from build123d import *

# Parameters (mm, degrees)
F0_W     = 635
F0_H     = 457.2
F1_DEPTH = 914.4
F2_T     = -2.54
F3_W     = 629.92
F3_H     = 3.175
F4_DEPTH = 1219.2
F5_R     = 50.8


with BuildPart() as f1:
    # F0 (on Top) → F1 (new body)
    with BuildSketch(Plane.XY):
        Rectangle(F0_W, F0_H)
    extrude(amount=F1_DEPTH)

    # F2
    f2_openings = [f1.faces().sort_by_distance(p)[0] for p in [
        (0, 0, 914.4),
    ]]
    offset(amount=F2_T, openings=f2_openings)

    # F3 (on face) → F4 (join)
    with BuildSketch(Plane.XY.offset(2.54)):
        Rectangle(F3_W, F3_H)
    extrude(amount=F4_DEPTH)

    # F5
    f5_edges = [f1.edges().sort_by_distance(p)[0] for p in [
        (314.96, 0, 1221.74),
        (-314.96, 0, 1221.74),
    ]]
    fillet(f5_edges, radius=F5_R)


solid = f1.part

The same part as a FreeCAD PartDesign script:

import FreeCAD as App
import Part
import Sketcher

V = App.Vector
Q = App.Units.Quantity


def edges_at(feature, points):
    """Names of the edges that pass closest to the given points."""
    edges = feature.Shape.Edges
    near = lambda p: min(range(len(edges)), key=lambda i: edges[i].distToShape(Part.Vertex(*p))[0])
    return sorted({f"Edge{near(p) + 1}" for p in points})


def faces_at(feature, points):
    """Names of the faces that lie closest to the given points."""
    faces = feature.Shape.Faces
    near = lambda p: min(range(len(faces)), key=lambda i: faces[i].distToShape(Part.Vertex(*p))[0])
    return sorted({f"Face{near(p) + 1}" for p in points})

doc = App.newDocument("Part")
body = doc.addObject("PartDesign::Body", "Body")

# Sketch on XY plane
sketch1 = doc.addObject("Sketcher::SketchObject", "Sketch")
body.addObject(sketch1)
sketch1.AttachmentSupport = (doc.XY_Plane, [""])
sketch1.MapMode = "FlatFace"
sketch1.addGeometry([
    Part.LineSegment(V(-317.5, 228.6, 0), V(-317.5, -228.6, 0)),
    Part.LineSegment(V(-317.5, -228.6, 0), V(317.5, -228.6, 0)),
    Part.LineSegment(V(317.5, -228.6, 0), V(317.5, 228.6, 0)),
    Part.LineSegment(V(317.5, 228.6, 0), V(-317.5, 228.6, 0)),
], False)
sketch1.addConstraint([
    Sketcher.Constraint("Coincident", 0, 2, 1, 1),
    Sketcher.Constraint("Coincident", 1, 2, 2, 1),
    Sketcher.Constraint("Coincident", 2, 2, 3, 1),
    Sketcher.Constraint("Coincident", 3, 2, 0, 1),
    Sketcher.Constraint("Vertical", 0),
    Sketcher.Constraint("Horizontal", 1),
    Sketcher.Constraint("Vertical", 2),
    Sketcher.Constraint("Horizontal", 3),
    Sketcher.Constraint("Symmetric", 0, 2, 2, 2, -1, 1),
    Sketcher.Constraint("DistanceX", 1, 1, 1, 2, Q("25 in")),
    Sketcher.Constraint("DistanceY", 0, 2, 0, 1, Q("18 in")),
])
pad1 = doc.addObject("PartDesign::Pad", "Pad")
body.addObject(pad1)
pad1.Profile = sketch1
pad1.Length = Q("36 in")
doc.recompute()

thickness = doc.addObject("PartDesign::Thickness", "Thickness")
body.addObject(thickness)
thickness.Base = (pad1, faces_at(pad1, [(0, 0, 914.4)]))
thickness.Value = Q("0.1 in")
thickness.Reversed = True
thickness.Join = "Arc"

# Sketch on XY plane
sketch2 = doc.addObject("Sketcher::SketchObject", "Sketch001")
body.addObject(sketch2)
sketch2.AttachmentSupport = (doc.XY_Plane, [""])
sketch2.MapMode = "FlatFace"
sketch2.AttachmentOffset = App.Placement(V(0, 0, 0.1 * 25.4), App.Rotation())
sketch2.addGeometry([
    Part.LineSegment(V(-314.96, 1.5875, 0), V(-314.96, -1.5875, 0)),
    Part.LineSegment(V(-314.96, -1.5875, 0), V(314.96, -1.5875, 0)),
    Part.LineSegment(V(314.96, -1.5875, 0), V(314.96, 1.5875, 0)),
    Part.LineSegment(V(314.96, 1.5875, 0), V(-314.96, 1.5875, 0)),
], False)
sketch2.addConstraint([
    Sketcher.Constraint("Coincident", 0, 2, 1, 1),
    Sketcher.Constraint("Coincident", 1, 2, 2, 1),
    Sketcher.Constraint("Coincident", 2, 2, 3, 1),
    Sketcher.Constraint("Coincident", 3, 2, 0, 1),
    Sketcher.Constraint("Vertical", 0),
    Sketcher.Constraint("Horizontal", 1),
    Sketcher.Constraint("Vertical", 2),
    Sketcher.Constraint("Horizontal", 3),
    Sketcher.Constraint("Symmetric", 0, 2, 2, 2, -1, 1),
    Sketcher.Constraint("DistanceX", 1, 1, 1, 2, Q("24.8 in")),
    Sketcher.Constraint("DistanceY", 0, 2, 0, 1, Q("0.125 in")),
])
pad2 = doc.addObject("PartDesign::Pad", "Pad001")
body.addObject(pad2)
pad2.Profile = sketch2
pad2.Length = Q("48 in")
doc.recompute()

fillet = doc.addObject("PartDesign::Fillet", "Fillet")
body.addObject(fillet)
fillet.Base = (pad2, edges_at(pad2, [(314.96, 0, 1221.74), (-314.96, 0, 1221.74)]))
fillet.Radius = Q("2 in")

doc.recompute()
